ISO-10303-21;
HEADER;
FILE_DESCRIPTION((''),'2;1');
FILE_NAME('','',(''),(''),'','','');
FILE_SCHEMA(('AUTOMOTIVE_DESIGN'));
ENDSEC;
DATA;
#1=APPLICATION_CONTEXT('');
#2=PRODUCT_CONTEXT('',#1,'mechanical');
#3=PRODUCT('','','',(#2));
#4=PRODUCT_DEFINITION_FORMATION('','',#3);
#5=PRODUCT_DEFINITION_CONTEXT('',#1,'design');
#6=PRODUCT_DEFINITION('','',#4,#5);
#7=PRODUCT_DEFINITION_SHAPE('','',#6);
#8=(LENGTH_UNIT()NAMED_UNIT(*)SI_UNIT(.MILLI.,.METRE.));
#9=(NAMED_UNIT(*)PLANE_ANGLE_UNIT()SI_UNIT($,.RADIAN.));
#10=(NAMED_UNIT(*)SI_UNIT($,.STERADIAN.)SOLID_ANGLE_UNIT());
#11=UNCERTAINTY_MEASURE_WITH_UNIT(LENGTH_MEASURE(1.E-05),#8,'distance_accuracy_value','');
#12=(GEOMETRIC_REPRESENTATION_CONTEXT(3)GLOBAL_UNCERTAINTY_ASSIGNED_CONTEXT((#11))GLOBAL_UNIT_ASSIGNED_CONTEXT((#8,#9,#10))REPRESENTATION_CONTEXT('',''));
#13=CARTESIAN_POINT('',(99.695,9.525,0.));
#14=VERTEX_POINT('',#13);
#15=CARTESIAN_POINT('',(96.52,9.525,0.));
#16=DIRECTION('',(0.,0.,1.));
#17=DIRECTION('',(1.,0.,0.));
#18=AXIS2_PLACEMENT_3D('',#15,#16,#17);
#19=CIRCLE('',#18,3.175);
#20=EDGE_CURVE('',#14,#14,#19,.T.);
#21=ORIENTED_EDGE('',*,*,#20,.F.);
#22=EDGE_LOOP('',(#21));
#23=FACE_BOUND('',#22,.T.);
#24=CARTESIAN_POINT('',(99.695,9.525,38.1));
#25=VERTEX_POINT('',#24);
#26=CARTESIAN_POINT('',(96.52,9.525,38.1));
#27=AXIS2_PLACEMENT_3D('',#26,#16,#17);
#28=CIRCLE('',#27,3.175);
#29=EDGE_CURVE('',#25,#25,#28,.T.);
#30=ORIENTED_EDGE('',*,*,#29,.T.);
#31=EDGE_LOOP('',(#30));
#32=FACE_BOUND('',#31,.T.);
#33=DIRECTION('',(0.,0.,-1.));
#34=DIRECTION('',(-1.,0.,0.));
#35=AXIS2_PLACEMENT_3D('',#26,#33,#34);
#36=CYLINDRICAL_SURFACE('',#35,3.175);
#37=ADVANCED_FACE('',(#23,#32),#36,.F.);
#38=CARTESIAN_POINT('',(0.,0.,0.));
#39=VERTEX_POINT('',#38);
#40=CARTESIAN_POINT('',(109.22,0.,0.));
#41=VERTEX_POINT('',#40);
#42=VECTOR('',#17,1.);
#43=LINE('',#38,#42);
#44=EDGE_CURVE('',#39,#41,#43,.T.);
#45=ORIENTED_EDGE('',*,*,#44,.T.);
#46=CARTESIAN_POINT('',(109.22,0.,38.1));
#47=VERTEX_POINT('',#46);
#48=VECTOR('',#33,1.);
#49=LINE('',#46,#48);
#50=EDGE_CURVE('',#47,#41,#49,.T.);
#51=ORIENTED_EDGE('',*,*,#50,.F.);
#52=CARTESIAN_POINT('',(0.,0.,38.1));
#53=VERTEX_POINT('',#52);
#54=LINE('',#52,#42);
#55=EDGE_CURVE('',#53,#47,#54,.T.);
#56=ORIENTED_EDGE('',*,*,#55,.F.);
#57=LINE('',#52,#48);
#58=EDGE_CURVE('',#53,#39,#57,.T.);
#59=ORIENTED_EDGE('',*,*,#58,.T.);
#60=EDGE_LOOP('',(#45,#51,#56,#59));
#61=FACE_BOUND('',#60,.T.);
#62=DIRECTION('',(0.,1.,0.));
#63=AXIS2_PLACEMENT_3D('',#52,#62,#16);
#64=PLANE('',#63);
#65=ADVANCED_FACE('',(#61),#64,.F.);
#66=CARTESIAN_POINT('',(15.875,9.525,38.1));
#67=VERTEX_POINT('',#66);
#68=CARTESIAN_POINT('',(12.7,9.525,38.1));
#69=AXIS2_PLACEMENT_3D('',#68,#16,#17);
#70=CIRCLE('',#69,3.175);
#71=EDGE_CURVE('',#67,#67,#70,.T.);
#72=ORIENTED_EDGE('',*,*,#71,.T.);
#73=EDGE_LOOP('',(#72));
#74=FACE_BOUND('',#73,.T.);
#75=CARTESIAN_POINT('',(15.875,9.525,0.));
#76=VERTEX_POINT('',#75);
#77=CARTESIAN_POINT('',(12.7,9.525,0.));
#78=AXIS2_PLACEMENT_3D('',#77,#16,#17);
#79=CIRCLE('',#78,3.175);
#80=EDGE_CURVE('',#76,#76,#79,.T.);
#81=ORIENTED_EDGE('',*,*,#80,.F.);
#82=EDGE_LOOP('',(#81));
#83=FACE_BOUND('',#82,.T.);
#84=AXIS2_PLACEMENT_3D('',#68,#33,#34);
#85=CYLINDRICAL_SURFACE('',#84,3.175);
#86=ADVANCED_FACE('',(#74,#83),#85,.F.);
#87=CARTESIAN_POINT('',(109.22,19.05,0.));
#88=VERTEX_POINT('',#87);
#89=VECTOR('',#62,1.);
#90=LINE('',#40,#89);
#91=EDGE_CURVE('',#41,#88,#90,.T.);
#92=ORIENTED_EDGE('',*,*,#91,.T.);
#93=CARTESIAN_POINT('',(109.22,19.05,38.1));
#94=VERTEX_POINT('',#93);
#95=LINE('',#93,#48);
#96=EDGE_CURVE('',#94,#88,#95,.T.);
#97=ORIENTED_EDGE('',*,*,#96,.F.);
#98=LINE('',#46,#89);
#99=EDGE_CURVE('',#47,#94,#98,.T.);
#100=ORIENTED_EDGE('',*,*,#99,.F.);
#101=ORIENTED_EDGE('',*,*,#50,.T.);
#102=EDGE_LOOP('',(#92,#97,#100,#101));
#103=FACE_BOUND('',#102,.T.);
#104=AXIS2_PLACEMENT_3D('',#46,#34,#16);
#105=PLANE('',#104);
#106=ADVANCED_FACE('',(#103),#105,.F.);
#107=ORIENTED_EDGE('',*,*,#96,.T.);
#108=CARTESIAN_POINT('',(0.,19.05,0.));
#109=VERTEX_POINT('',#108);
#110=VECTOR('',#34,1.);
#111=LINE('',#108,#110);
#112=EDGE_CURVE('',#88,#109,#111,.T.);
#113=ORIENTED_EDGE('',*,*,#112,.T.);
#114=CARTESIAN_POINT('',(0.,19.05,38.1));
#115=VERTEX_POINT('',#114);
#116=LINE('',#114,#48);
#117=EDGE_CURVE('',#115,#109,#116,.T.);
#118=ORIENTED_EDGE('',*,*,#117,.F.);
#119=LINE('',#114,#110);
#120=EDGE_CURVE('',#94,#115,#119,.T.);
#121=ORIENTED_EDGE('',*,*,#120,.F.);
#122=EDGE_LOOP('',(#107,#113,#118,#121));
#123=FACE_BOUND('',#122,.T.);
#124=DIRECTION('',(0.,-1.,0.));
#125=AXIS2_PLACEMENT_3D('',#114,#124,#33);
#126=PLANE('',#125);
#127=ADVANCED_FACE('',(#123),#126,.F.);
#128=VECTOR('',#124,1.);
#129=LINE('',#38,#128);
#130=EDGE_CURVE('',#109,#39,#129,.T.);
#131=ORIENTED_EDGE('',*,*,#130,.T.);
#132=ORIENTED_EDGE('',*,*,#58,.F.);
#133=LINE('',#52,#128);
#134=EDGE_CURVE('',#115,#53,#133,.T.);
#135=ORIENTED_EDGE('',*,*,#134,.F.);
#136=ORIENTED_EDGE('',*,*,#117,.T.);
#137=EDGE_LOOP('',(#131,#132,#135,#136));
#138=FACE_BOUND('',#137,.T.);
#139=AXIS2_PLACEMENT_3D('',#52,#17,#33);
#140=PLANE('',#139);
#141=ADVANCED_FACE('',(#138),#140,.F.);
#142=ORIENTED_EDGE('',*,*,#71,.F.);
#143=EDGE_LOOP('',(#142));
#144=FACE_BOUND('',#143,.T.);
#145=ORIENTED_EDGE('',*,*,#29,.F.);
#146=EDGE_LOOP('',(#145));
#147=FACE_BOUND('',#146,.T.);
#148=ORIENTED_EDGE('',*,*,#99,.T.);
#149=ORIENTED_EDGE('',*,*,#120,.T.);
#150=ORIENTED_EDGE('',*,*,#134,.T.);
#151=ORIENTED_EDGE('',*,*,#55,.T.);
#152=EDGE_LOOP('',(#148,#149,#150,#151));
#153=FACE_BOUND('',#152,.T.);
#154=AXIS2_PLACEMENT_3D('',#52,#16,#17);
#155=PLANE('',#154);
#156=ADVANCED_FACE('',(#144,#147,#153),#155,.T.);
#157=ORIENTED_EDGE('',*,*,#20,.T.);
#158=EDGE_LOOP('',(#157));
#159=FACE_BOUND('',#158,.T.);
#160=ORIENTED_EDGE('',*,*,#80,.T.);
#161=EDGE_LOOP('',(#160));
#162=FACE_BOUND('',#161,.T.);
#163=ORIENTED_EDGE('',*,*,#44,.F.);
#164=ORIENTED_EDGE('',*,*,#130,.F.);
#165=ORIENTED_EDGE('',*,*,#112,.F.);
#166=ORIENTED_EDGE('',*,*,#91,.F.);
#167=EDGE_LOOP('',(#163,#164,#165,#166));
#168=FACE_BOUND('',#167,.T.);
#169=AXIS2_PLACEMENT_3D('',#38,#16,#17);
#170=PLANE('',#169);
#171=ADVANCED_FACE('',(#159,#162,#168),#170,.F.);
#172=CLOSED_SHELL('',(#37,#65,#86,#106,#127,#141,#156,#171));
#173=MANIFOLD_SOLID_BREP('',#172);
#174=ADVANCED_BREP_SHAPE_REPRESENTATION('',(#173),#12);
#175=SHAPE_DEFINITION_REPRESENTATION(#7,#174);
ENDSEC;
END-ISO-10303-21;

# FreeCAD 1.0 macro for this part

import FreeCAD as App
import Part
import Sketcher
Q = App.Units.Quantity

doc = App.newDocument("Part")
body = doc.addObject("PartDesign::Body", "Body")

sketch1 = body.newObject("Sketcher::SketchObject", "Sketch")
sketch1.AttachmentSupport = (doc.getObject("XY_Plane"), [""])
sketch1.MapMode = "FlatFace"
sketch1.addGeometry(Part.LineSegment(App.Vector(0, 19.1, 0), App.Vector(0, 0, 0)), False)
sketch1.addGeometry(Part.LineSegment(App.Vector(0, 0, 0), App.Vector(109.2, 0, 0)), False)
sketch1.addGeometry(Part.LineSegment(App.Vector(109.2, 0, 0), App.Vector(109.2, 19.1, 0)), False)
sketch1.addGeometry(Part.LineSegment(App.Vector(109.2, 19.1, 0), App.Vector(0, 19.1, 0)), False)
sketch1.addGeometry(Part.Circle(App.Vector(12.7, 9.5, 0), App.Vector(0, 0, 1), 3.2), False)
sketch1.addGeometry(Part.Circle(App.Vector(96.5, 9.5, 0), App.Vector(0, 0, 1), 3.2), False)
sketch1.addConstraint(Sketcher.Constraint("Coincident", 0, 2, 1, 1))
sketch1.addConstraint(Sketcher.Constraint("Coincident", 1, 2, 2, 1))
sketch1.addConstraint(Sketcher.Constraint("Coincident", 2, 2, 3, 1))
sketch1.addConstraint(Sketcher.Constraint("Coincident", 3, 2, 0, 1))
sketch1.addConstraint(Sketcher.Constraint("Vertical", 0))
sketch1.addConstraint(Sketcher.Constraint("Horizontal", 1))
sketch1.addConstraint(Sketcher.Constraint("Vertical", 2))
sketch1.addConstraint(Sketcher.Constraint("Horizontal", 3))
sketch1.addConstraint(Sketcher.Constraint("Coincident", 0, 2, -1, 1))
sketch1.addConstraint(Sketcher.Constraint("Equal", 4, 5))
sketch1.addConstraint(Sketcher.Constraint("Horizontal", 4, 3, 5, 3))
sketch1.addConstraint(Sketcher.Constraint("Diameter", 4, Q("0.25 in")))
sketch1.addConstraint(Sketcher.Constraint("DistanceX", 1, 1, 1, 2, Q("4.3 in")))
sketch1.addConstraint(Sketcher.Constraint("DistanceY", 0, 2, 0, 1, Q("0.75 in")))
sketch1.addConstraint(Sketcher.Constraint("DistanceX", -1, 1, 4, 3, Q("0.5 in")))
sketch1.addConstraint(Sketcher.Constraint("DistanceX", -1, 1, 5, 3, Q("3.8 in")))
sketch1.addConstraint(Sketcher.Constraint("DistanceY", -1, 1, 4, 3, Q("0.375 in")))
pad1 = body.newObject("PartDesign::Pad", "Pad")
pad1.Profile = sketch1
pad1.Length = Q("1.5 in")

doc.recompute()
